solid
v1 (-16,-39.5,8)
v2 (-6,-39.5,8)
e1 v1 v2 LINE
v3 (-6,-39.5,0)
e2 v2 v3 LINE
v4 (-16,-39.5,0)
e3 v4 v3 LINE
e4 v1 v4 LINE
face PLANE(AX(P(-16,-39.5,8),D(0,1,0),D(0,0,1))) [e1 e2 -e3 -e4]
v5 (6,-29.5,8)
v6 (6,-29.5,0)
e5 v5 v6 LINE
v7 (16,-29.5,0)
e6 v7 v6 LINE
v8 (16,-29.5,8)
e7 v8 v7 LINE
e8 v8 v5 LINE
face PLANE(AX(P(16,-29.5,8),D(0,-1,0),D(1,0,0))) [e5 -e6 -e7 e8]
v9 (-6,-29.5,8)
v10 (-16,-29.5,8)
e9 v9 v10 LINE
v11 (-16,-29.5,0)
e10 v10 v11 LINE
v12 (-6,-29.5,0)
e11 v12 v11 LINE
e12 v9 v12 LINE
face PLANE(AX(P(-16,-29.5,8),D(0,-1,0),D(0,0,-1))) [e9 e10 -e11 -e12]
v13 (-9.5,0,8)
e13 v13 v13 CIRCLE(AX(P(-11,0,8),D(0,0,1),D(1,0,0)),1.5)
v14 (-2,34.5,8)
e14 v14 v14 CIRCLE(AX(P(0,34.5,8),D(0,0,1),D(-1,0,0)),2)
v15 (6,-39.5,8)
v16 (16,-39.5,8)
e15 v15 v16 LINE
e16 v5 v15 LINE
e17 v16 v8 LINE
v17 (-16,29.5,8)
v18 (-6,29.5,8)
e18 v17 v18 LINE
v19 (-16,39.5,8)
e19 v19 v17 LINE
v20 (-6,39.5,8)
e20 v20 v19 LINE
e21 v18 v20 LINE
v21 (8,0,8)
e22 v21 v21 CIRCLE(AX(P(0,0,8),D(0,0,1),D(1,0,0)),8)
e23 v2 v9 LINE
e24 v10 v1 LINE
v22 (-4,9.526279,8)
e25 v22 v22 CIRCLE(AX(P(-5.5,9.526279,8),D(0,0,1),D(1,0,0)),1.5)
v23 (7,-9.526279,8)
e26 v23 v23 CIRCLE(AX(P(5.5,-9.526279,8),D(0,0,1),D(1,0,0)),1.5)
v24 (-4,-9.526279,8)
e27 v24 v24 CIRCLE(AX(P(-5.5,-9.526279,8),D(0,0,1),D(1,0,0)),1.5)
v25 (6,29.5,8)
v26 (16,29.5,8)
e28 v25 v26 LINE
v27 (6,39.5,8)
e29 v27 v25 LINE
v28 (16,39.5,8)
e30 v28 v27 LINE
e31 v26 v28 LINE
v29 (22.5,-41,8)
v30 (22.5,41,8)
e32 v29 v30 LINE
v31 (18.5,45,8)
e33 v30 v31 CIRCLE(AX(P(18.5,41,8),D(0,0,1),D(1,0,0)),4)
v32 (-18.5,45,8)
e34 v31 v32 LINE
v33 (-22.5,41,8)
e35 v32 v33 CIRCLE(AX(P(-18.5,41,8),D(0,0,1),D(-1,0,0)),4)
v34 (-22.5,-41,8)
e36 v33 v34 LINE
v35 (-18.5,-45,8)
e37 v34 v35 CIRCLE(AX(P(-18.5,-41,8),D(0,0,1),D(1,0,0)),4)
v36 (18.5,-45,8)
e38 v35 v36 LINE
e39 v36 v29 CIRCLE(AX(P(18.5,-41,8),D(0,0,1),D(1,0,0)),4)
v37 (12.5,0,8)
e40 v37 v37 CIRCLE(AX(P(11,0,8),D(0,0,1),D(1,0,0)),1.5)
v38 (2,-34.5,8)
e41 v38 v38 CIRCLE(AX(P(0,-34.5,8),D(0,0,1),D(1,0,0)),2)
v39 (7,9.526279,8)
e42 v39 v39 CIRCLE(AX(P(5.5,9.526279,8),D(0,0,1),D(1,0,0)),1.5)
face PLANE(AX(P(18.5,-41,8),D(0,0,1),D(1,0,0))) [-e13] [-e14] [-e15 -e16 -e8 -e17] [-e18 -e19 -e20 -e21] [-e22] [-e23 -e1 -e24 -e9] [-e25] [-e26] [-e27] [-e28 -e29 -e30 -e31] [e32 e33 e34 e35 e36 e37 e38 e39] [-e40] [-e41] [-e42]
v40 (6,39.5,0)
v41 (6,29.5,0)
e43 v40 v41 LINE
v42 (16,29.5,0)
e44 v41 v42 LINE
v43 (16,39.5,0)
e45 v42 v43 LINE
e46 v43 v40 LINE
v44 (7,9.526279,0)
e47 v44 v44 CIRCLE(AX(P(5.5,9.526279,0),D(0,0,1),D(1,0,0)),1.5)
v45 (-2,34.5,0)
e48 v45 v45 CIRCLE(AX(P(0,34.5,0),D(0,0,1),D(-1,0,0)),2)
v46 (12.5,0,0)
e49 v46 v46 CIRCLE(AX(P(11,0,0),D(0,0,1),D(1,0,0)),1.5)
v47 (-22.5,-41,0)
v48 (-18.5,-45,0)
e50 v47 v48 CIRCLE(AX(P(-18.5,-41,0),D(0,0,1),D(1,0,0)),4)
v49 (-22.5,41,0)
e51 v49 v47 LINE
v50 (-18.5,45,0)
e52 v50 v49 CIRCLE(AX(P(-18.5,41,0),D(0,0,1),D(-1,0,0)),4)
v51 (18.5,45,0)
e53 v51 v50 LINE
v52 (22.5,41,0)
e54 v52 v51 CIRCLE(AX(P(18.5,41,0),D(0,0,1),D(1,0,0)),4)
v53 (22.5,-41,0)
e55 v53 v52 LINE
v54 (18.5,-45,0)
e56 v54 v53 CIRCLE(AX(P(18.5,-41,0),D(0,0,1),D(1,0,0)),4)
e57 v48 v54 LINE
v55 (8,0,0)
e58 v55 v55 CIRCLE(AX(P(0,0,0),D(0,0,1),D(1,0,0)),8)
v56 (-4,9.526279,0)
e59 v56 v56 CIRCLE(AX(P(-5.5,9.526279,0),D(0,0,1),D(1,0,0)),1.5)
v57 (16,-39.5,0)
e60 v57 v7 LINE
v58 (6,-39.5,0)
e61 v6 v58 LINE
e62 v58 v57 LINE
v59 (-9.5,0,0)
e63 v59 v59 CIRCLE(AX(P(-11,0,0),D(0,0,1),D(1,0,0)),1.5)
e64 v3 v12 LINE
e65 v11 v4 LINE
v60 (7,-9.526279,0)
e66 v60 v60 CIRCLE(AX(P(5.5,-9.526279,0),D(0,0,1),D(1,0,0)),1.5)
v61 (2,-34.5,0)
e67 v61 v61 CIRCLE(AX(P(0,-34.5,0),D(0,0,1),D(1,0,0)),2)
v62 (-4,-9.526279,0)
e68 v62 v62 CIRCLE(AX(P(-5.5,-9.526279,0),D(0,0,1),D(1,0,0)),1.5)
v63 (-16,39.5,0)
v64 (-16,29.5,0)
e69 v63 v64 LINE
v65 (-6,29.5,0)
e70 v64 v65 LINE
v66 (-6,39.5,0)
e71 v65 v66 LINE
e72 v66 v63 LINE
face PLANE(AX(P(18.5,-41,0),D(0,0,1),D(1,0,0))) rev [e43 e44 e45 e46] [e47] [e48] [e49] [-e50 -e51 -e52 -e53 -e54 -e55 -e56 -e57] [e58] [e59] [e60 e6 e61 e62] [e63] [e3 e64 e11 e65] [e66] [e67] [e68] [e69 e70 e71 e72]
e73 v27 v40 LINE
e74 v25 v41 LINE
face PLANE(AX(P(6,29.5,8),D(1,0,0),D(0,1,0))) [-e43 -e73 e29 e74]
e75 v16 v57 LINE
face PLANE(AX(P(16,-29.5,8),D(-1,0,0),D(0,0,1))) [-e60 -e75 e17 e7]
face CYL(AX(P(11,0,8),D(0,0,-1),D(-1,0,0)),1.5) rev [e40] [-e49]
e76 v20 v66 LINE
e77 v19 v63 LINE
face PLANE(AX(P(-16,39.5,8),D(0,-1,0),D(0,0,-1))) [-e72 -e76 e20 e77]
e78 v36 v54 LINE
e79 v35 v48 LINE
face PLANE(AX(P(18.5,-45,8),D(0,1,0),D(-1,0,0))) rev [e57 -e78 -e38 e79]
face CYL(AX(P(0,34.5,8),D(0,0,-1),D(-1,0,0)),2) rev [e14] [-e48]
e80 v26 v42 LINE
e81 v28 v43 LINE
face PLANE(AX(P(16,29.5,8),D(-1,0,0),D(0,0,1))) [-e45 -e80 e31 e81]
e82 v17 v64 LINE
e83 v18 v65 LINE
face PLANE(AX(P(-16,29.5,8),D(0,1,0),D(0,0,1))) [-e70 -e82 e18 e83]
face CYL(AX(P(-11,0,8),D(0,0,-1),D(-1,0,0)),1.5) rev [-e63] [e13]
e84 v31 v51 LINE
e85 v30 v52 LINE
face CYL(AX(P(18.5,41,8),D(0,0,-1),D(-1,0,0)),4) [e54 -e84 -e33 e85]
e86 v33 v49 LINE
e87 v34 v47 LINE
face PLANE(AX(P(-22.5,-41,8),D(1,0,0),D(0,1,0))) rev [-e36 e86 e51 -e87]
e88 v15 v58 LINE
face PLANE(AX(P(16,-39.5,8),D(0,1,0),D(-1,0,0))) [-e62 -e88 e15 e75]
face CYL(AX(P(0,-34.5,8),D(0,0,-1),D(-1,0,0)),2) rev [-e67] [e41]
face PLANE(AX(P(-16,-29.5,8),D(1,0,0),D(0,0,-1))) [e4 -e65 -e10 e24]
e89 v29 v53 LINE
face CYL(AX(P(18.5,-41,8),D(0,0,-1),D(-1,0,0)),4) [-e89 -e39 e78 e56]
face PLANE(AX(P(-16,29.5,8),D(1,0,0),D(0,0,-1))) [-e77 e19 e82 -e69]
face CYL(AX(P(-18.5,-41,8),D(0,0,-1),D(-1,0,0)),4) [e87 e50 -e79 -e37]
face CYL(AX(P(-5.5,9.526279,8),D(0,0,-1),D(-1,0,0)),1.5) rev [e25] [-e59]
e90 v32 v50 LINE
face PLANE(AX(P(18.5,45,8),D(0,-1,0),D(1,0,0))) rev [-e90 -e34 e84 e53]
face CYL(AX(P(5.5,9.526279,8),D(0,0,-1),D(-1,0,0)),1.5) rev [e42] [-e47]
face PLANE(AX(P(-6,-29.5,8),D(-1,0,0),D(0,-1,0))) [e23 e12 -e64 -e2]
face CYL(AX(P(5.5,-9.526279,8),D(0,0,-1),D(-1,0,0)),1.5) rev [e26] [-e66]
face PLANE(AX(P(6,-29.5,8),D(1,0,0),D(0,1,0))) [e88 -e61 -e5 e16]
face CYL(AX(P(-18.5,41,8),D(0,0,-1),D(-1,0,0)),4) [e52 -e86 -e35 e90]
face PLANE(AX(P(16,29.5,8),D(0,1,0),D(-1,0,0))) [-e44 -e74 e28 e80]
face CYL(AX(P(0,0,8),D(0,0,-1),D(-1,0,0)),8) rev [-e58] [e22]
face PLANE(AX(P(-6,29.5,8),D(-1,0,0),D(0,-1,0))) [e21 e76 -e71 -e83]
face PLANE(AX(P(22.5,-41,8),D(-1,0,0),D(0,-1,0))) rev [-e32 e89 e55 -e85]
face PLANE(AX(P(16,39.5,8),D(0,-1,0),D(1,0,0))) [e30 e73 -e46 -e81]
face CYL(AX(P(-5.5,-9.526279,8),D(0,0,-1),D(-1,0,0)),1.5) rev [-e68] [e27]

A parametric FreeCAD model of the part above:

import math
import FreeCAD as App
import Part
import Sketcher

V = App.Vector


def add_polygon(sketch, points):
    """Adds a closed chain of lines whose ends are joined by coincident constraints."""
    first, n = sketch.GeometryCount, len(points)
    for a, b in zip(points, points[1:] + points[:1]):
        sketch.addGeometry(Part.LineSegment(App.Vector(*a, 0), App.Vector(*b, 0)), False)
    for i in range(n):
        sketch.addConstraint(Sketcher.Constraint("Coincident", first + i, 2, first + (i + 1) % n, 1))

doc = App.newDocument("Part")
body = doc.addObject("PartDesign::Body", "Body")

sketch1 = body.newObject("Sketcher::SketchObject", "Sketch")
sketch1.AttachmentSupport = (doc.getObject("XY_Plane"), [""])
sketch1.MapMode = "FlatFace"
sketch1.addGeometry(Part.LineSegment(V(-18.5, -45, 0), V(18.5, -45, 0)), False)
sketch1.addGeometry(Part.ArcOfCircle(Part.Circle(V(18.5, -41, 0), V(0, 0, 1), 4), math.radians(-90), math.radians(0)), False)
sketch1.addGeometry(Part.LineSegment(V(22.5, -41, 0), V(22.5, 41, 0)), False)
sketch1.addGeometry(Part.ArcOfCircle(Part.Circle(V(18.5, 41, 0), V(0, 0, 1), 4), math.radians(0), math.radians(90)), False)
sketch1.addGeometry(Part.LineSegment(V(18.5, 45, 0), V(-18.5, 45, 0)), False)
sketch1.addGeometry(Part.ArcOfCircle(Part.Circle(V(-18.5, 41, 0), V(0, 0, 1), 4), math.radians(90), math.radians(180)), False)
sketch1.addGeometry(Part.LineSegment(V(-22.5, 41, 0), V(-22.5, -41, 0)), False)
sketch1.addGeometry(Part.ArcOfCircle(Part.Circle(V(-18.5, -41, 0), V(0, 0, 1), 4), math.radians(180), math.radians(270)), False)
add_polygon(sketch1, [(6, -39.5), (6, -29.5), (16, -29.5), (16, -39.5)])
sketch1.addGeometry(Part.Circle(V(5.5, -9.526279, 0), V(0, 0, 1), 1.5), False)
sketch1.addGeometry(Part.Circle(V(0, -34.5, 0), V(0, 0, 1), 2), False)
add_polygon(sketch1, [(-16, -39.5), (-16, -29.5), (-6, -29.5), (-6, -39.5)])
sketch1.addGeometry(Part.Circle(V(-5.5, -9.526279, 0), V(0, 0, 1), 1.5), False)
sketch1.addGeometry(Part.Circle(V(11, 0, 0), V(0, 0, 1), 1.5), False)
sketch1.addGeometry(Part.Circle(V(5.5, 9.526279, 0), V(0, 0, 1), 1.5), False)
add_polygon(sketch1, [(6, 29.5), (6, 39.5), (16, 39.5), (16, 29.5)])
sketch1.addGeometry(Part.Circle(V(0, 0, 0), V(0, 0, 1), 8), False)
sketch1.addGeometry(Part.Circle(V(-5.5, 9.526279, 0), V(0, 0, 1), 1.5), False)
sketch1.addGeometry(Part.Circle(V(-11, 0, 0), V(0, 0, 1), 1.5), False)
sketch1.addGeometry(Part.Circle(V(0, 34.5, 0), V(0, 0, 1), 2), False)
add_polygon(sketch1, [(-16, 29.5), (-16, 39.5), (-6, 39.5), (-6, 29.5)])
sketch1.addConstraint(Sketcher.Constraint("Tangent", 0, 2, 1, 1))
sketch1.addConstraint(Sketcher.Constraint("Tangent", 1, 2, 2, 1))
sketch1.addConstraint(Sketcher.Constraint("Tangent", 2, 2, 3, 1))
sketch1.addConstraint(Sketcher.Constraint("Tangent", 3, 2, 4, 1))
sketch1.addConstraint(Sketcher.Constraint("Tangent", 4, 2, 5, 1))
sketch1.addConstraint(Sketcher.Constraint("Tangent", 5, 2, 6, 1))
sketch1.addConstraint(Sketcher.Constraint("Tangent", 6, 2, 7, 1))
sketch1.addConstraint(Sketcher.Constraint("Tangent", 7, 2, 0, 1))
sketch1.addConstraint(Sketcher.Constraint("Horizontal", 0))
sketch1.addConstraint(Sketcher.Constraint("Vertical", 2))
sketch1.addConstraint(Sketcher.Constraint("Horizontal", 4))
sketch1.addConstraint(Sketcher.Constraint("Vertical", 6))
sketch1.addConstraint(Sketcher.Constraint("Vertical", 8))
sketch1.addConstraint(Sketcher.Constraint("Horizontal", 9))
sketch1.addConstraint(Sketcher.Constraint("Vertical", 10))
sketch1.addConstraint(Sketcher.Constraint("Horizontal", 11))
sketch1.addConstraint(Sketcher.Constraint("Vertical", 14))
sketch1.addConstraint(Sketcher.Constraint("Horizontal", 15))
sketch1.addConstraint(Sketcher.Constraint("Vertical", 16))
sketch1.addConstraint(Sketcher.Constraint("Horizontal", 17))
sketch1.addConstraint(Sketcher.Constraint("Vertical", 21))
sketch1.addConstraint(Sketcher.Constraint("Horizontal", 22))
sketch1.addConstraint(Sketcher.Constraint("Vertical", 23))
sketch1.addConstraint(Sketcher.Constraint("Horizontal", 24))
sketch1.addConstraint(Sketcher.Constraint("Vertical", 29))
sketch1.addConstraint(Sketcher.Constraint("Horizontal", 30))
sketch1.addConstraint(Sketcher.Constraint("Vertical", 31))
sketch1.addConstraint(Sketcher.Constraint("Horizontal", 32))
sketch1.addConstraint(Sketcher.Constraint("Coincident", 25, 3, -1, 1))
sketch1.addConstraint(Sketcher.Constraint("Equal", 1, 3))
sketch1.addConstraint(Sketcher.Constraint("Equal", 3, 5))
sketch1.addConstraint(Sketcher.Constraint("Equal", 5, 7))
sketch1.addConstraint(Sketcher.Constraint("Equal", 12, 18))
sketch1.addConstraint(Sketcher.Constraint("Equal", 18, 19))
sketch1.addConstraint(Sketcher.Constraint("Equal", 19, 20))
sketch1.addConstraint(Sketcher.Constraint("Equal", 20, 26))
sketch1.addConstraint(Sketcher.Constraint("Equal", 26, 27))
sketch1.addConstraint(Sketcher.Constraint("Equal", 13, 28))
sketch1.addConstraint(Sketcher.Constraint("Symmetric", 1, 3, 5, 3, -1, 1))
sketch1.addConstraint(Sketcher.Constraint("Symmetric", 18, 3, 20, 3, -1, 1))
sketch1.addConstraint(Sketcher.Constraint("Symmetric", 12, 3, 26, 3, -1, 1))
sketch1.addConstraint(Sketcher.Constraint("Symmetric", 19, 3, 27, 3, -1, 1))
sketch1.addConstraint(Sketcher.Constraint("Symmetric", 13, 3, 28, 3, -1, 1))
sketch1.addConstraint(Sketcher.Constraint("Symmetric", 16, 2, 21, 2, -1, 1))
sketch1.addConstraint(Sketcher.Constraint("Symmetric", 14, 2, 23, 2, -1, 1))
sketch1.addConstraint(Sketcher.Constraint("Symmetric", 10, 2, 29, 2, -1, 1))
sketch1.addConstraint(Sketcher.Constraint("Symmetric", 8, 2, 31, 2, -1, 1))
sketch1.addConstraint(Sketcher.Constraint("Symmetric", 12, 3, 18, 3, -2))
sketch1.addConstraint(Sketcher.Constraint("Symmetric", 9, 2, 14, 2, -2))
sketch1.addConstraint(Sketcher.Constraint("Symmetric", 11, 2, 16, 2, -2))
sketch1.addConstraint(Sketcher.Constraint("PointOnObject", 13, 3, -2))
sketch1.addConstraint(Sketcher.Constraint("PointOnObject", 19, 3, -1))
sketch1.addConstraint(Sketcher.Constraint("Equal", 32, 8))
sketch1.addConstraint(Sketcher.Constraint("Diameter", 12, 3.0))
sketch1.addConstraint(Sketcher.Constraint("Diameter", 13, 4.0))
sketch1.addConstraint(Sketcher.Constraint("Diameter", 25, 16.0))
sketch1.addConstraint(Sketcher.Constraint("Radius", 1, 4.0))
sketch1.addConstraint(Sketcher.Constraint("DistanceX", 0, 1, 0, 2, 37.0))
sketch1.addConstraint(Sketcher.Constraint("DistanceX", 9, 1, 9, 2, 10.0))
sketch1.addConstraint(Sketcher.Constraint("DistanceY", 2, 1, 2, 2, 82.0))
sketch1.addConstraint(Sketcher.Constraint("DistanceX", -1, 1, 19, 3, 11.0))
sketch1.addConstraint(Sketcher.Constraint("DistanceX", -1, 1, 8, 2, 6.0))
sketch1.addConstraint(Sketcher.Constraint("DistanceX", 12, 3, 1, 3, 13.0))
sketch1.addConstraint(Sketcher.Constraint("DistanceY", 13, 3, 8, 2, 5.0))
sketch1.addConstraint(Sketcher.Constraint("DistanceY", 13, 3, -1, 1, 34.5))
sketch1.addConstraint(Sketcher.Constraint("DistanceY", 12, 3, -1, 1, 9.526279))
pad1 = body.newObject("PartDesign::Pad", "Pad")
pad1.Profile = sketch1
pad1.Length = 8

doc.recompute()
